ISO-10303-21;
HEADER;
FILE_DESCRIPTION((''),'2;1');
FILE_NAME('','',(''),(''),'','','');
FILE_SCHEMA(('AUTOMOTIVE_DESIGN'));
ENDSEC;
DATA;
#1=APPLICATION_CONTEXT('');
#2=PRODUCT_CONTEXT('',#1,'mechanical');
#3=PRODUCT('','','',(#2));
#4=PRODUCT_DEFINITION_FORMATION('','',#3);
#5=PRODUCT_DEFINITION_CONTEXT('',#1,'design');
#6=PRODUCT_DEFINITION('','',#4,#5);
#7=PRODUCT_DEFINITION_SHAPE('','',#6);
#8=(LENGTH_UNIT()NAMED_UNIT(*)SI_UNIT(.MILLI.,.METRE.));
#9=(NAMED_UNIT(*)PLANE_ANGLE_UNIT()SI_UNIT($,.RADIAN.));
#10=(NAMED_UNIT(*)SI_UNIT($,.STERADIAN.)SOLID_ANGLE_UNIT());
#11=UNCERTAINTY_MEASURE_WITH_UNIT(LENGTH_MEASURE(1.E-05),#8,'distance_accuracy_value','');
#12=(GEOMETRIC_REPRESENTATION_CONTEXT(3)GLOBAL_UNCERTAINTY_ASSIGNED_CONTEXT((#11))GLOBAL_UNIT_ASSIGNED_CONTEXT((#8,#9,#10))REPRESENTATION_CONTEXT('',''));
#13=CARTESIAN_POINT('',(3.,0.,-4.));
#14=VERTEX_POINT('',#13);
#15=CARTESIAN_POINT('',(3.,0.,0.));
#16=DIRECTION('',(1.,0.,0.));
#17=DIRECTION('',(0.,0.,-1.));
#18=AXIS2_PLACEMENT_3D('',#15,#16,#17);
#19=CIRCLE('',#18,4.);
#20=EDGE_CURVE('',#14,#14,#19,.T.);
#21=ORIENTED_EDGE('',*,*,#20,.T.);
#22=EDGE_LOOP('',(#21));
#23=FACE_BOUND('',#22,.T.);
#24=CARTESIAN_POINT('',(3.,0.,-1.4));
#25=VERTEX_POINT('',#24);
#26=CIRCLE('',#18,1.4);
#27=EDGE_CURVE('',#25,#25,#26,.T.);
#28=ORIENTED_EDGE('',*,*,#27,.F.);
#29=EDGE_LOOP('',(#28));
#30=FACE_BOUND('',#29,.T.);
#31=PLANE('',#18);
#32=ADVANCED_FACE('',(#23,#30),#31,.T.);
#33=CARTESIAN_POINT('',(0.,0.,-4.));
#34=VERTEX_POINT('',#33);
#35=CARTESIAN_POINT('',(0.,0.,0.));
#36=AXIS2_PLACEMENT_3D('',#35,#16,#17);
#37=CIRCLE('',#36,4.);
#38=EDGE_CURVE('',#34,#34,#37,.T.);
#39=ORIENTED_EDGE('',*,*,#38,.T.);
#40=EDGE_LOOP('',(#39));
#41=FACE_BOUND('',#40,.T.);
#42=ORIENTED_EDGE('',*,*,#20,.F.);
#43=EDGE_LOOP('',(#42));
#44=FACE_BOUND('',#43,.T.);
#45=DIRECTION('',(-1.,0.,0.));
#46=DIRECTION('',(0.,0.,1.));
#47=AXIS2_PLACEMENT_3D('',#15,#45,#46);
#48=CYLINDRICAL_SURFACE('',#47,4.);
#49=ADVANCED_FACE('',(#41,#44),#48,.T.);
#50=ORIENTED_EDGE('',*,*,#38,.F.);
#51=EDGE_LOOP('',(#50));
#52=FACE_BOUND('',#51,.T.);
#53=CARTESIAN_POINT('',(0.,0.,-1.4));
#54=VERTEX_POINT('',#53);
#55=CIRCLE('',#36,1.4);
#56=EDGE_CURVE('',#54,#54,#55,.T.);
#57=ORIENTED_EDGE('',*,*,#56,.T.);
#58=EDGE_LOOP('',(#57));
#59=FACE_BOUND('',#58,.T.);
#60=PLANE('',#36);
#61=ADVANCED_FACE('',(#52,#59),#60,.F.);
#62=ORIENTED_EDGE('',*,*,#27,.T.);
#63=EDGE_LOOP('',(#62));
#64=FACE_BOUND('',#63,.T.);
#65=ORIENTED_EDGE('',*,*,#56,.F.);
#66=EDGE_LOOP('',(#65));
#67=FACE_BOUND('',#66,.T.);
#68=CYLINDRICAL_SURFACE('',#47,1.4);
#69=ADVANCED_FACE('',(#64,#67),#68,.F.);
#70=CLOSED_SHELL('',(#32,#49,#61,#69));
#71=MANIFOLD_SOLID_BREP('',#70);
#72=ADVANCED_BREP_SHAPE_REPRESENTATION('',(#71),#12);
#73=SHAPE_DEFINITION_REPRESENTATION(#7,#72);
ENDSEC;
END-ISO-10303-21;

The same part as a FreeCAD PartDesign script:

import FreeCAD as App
import Part
import Sketcher
from FreeCAD import Vector

doc = App.newDocument("Part")
body = doc.addObject("PartDesign::Body", "Body")

sketch1 = body.newObject("Sketcher::SketchObject", "Sketch")
sketch1.AttachmentSupport = (doc.getObject("YZ_Plane"), [""])
sketch1.MapMode = "FlatFace"
sketch1.addGeometry([
    Part.Circle(Vector(0, 0, 0), Vector(0, 0, 1), 4),
    Part.Circle(Vector(0, 0, 0), Vector(0, 0, 1), 1.4),
], False)
sketch1.addConstraint([
    Sketcher.Constraint("Coincident", 0, 3, -1, 1),
    Sketcher.Constraint("Coincident", 1, 3, -1, 1),
    Sketcher.Constraint("Diameter", 0, 8.0),
    Sketcher.Constraint("Diameter", 1, 2.8),
])
pad1 = body.newObject("PartDesign::Pad", "Pad")
pad1.Profile = sketch1
pad1.Length = 3

doc.recompute()
